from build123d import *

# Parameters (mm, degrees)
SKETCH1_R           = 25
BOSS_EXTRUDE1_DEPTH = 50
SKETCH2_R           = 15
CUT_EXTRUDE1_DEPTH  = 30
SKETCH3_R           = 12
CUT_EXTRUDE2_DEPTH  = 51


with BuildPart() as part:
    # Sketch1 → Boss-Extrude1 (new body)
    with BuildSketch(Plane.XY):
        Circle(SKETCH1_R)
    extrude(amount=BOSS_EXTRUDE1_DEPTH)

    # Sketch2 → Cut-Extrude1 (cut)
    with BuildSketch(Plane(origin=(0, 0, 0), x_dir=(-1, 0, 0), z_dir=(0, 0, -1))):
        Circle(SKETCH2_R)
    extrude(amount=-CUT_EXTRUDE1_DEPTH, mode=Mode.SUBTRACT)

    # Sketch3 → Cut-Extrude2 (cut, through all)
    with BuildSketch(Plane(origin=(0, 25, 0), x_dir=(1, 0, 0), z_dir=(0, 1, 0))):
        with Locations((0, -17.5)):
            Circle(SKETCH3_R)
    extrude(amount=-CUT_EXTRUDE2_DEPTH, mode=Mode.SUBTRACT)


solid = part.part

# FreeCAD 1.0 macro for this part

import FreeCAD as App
import Part
import Sketcher
from FreeCAD import Vector
Q = App.Units.Quantity

doc = App.newDocument("Part")
body = doc.addObject("PartDesign::Body", "Body")

sketch1 = doc.addObject("Sketcher::SketchObject", "Sketch")
body.addObject(sketch1)
sketch1.AttachmentSupport = (doc.XY_Plane, [""])
sketch1.MapMode = "FlatFace"
sketch1.addGeometry(Part.Circle(Vector(0, 0, 0), Vector(0, 0, 1), 25), False)
sketch1.addConstraint([
    Sketcher.Constraint("Coincident", 0, 3, -1, 1),
    Sketcher.Constraint("Diameter", 0, Q("50 mm")),
])
pad1 = doc.addObject("PartDesign::Pad", "Pad")
body.addObject(pad1)
pad1.Profile = sketch1
pad1.Length = 50

sketch2 = doc.addObject("Sketcher::SketchObject", "Sketch001")
body.addObject(sketch2)
sketch2.AttachmentSupport = (doc.XY_Plane, [""])
sketch2.MapMode = "FlatFace"
sketch2.addGeometry(Part.Circle(Vector(0, 0, 0), Vector(0, 0, 1), 15), False)
sketch2.addConstraint([
    Sketcher.Constraint("Coincident", 0, 3, -1, 1),
    Sketcher.Constraint("Diameter", 0, Q("30 mm")),
])
pocket1 = doc.addObject("PartDesign::Pocket", "Pocket")
body.addObject(pocket1)
pocket1.Profile = sketch2
pocket1.Length = 30
pocket1.Reversed = True

sketch3 = doc.addObject("Sketcher::SketchObject", "Sketch002")
body.addObject(sketch3)
sketch3.AttachmentSupport = (doc.XZ_Plane, [""])
sketch3.MapMode = "FlatFace"
sketch3.AttachmentOffset = App.Placement(Vector(0, 0, -25), App.Rotation())
sketch3.addGeometry(Part.Circle(Vector(0, 18, 0), Vector(0, 0, 1), 12), False)
sketch3.addConstraint([
    Sketcher.Constraint("PointOnObject", 0, 3, -2),
    Sketcher.Constraint("Diameter", 0, Q("24 mm")),
    Sketcher.Constraint("DistanceY", -1, 1, 0, 3, Q("17.5 mm")),
])
pocket2 = doc.addObject("PartDesign::Pocket", "Pocket001")
body.addObject(pocket2)
pocket2.Profile = sketch3
pocket2.Type = "ThroughAll"
pocket2.Reversed = True

doc.recompute()
